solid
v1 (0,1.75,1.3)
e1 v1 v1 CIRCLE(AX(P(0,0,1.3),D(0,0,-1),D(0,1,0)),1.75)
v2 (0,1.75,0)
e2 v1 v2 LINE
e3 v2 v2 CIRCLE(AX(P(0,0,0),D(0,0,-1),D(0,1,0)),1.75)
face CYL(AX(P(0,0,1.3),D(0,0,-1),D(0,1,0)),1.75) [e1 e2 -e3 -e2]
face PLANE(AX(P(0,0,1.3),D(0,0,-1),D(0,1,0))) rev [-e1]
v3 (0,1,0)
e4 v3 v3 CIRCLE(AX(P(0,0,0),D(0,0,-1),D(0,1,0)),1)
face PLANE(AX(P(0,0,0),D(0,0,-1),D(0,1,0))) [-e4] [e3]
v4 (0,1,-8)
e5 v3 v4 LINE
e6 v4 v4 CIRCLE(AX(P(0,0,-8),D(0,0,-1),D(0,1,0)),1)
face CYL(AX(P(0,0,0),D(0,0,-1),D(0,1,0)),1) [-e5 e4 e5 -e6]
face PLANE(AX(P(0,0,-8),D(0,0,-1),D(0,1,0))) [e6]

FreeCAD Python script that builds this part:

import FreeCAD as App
import Part
import Sketcher
Q = App.Units.Quantity


def add_polygon(sketch, points):
    """Adds a closed chain of lines whose ends are joined by coincident constraints."""
    first, n = sketch.GeometryCount, len(points)
    for a, b in zip(points, points[1:] + points[:1]):
        sketch.addGeometry(Part.LineSegment(App.Vector(*a, 0), App.Vector(*b, 0)), False)
    for i in range(n):
        sketch.addConstraint(Sketcher.Constraint("Coincident", first + i, 2, first + (i + 1) % n, 1))

doc = App.newDocument("Part")
params = doc.addObject("Spreadsheet::Sheet", "Params")
for row, (alias, value) in enumerate([
    ("sketch1_width", "1 mm"),
    ("sketch1_height", "8 mm"),
    ("sketch1_height2", "1.3 mm"),
    ("sketch1_width2", "1.75 mm"),
    ("revolution_angle", "360 deg"),
], start=1):
    params.set(f"A{row}", alias)
    params.set(f"B{row}", "=" + value)
    params.setAlias(f"B{row}", alias)

body = doc.addObject("PartDesign::Body", "Body")

# Sketch on YZ plane
sketch1 = body.newObject("Sketcher::SketchObject", "Sketch")
sketch1.AttachmentSupport = (doc.getObject("YZ_Plane"), [""])
sketch1.MapMode = "FlatFace"
add_polygon(sketch1, [(1.75, 1.3), (0, 1.3), (0, -8), (1, -8), (1, 0), (1.75, 0)])  # lines 0-5
sketch1.addConstraint(Sketcher.Constraint("Horizontal", 0))
sketch1.addConstraint(Sketcher.Constraint("Vertical", 1))
sketch1.addConstraint(Sketcher.Constraint("Horizontal", 2))
sketch1.addConstraint(Sketcher.Constraint("Vertical", 3))
sketch1.addConstraint(Sketcher.Constraint("Horizontal", 4))
sketch1.addConstraint(Sketcher.Constraint("Vertical", 5))
sketch1.addConstraint(Sketcher.Constraint("PointOnObject", 0, 2, -2))
sketch1.addConstraint(Sketcher.Constraint("PointOnObject", 3, 2, -1))
sketch1.addConstraint(Sketcher.Constraint("DistanceX", 2, 1, 2, 2, Q("1 mm")))
sketch1.addConstraint(Sketcher.Constraint("DistanceY", 3, 1, 3, 2, Q("8 mm")))
sketch1.addConstraint(Sketcher.Constraint("DistanceY", 5, 1, 5, 2, Q("1.3 mm")))
sketch1.addConstraint(Sketcher.Constraint("DistanceX", 0, 2, 0, 1, Q("1.75 mm")))
sketch1.setExpression("Constraints[14]", "Params.sketch1_width")
sketch1.setExpression("Constraints[15]", "Params.sketch1_height")
sketch1.setExpression("Constraints[16]", "Params.sketch1_height2")
sketch1.setExpression("Constraints[17]", "Params.sketch1_width2")
revolution = body.newObject("PartDesign::Revolution", "Revolution")
revolution.Profile = sketch1
revolution.ReferenceAxis = (sketch1, ["V_Axis"])
revolution.setExpression("Angle", "Params.revolution_angle")

doc.recompute()
